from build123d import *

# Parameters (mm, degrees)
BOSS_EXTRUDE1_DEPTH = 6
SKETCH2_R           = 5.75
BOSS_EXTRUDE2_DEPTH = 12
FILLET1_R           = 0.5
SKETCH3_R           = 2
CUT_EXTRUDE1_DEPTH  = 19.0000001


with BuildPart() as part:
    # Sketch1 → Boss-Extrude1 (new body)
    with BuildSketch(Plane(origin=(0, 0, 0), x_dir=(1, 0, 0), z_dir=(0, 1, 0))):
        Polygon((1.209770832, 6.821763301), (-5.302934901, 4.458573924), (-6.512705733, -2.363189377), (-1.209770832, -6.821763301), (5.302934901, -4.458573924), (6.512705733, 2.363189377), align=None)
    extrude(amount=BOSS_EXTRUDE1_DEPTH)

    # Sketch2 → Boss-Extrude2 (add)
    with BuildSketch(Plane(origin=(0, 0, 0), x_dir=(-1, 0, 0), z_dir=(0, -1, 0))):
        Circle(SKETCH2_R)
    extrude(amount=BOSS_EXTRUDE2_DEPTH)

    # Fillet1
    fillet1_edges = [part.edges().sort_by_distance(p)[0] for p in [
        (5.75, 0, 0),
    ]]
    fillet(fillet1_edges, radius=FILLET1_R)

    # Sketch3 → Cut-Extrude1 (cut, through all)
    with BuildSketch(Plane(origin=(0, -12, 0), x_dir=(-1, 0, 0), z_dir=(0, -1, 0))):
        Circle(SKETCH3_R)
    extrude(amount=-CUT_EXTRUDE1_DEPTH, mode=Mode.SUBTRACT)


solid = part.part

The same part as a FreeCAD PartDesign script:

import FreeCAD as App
import Part
import Sketcher


def edges_at(feature, points):
    """Names of the edges that pass closest to the given points."""
    edges = feature.Shape.Edges
    near = lambda p: min(range(len(edges)), key=lambda i: edges[i].distToShape(Part.Vertex(*p))[0])
    return sorted({f"Edge{near(p) + 1}" for p in points})

doc = App.newDocument("Part")
body = doc.addObject("PartDesign::Body", "Body")

# Sketch on XZ plane
sketch1 = doc.addObject("Sketcher::SketchObject", "Sketch")
body.addObject(sketch1)
sketch1.AttachmentSupport = (doc.XZ_Plane, [""])
sketch1.MapMode = "FlatFace"
sketch1.addGeometry([
    Part.LineSegment(App.Vector(1, -7, 0), App.Vector(-5, -4, 0)),  # 0
    Part.LineSegment(App.Vector(-5, -4, 0), App.Vector(-7, 2, 0)),  # 1
    Part.LineSegment(App.Vector(-7, 2, 0), App.Vector(-1, 7, 0)),  # 2
    Part.LineSegment(App.Vector(-1, 7, 0), App.Vector(5, 4, 0)),  # 3
    Part.LineSegment(App.Vector(5, 4, 0), App.Vector(7, -2, 0)),  # 4
    Part.LineSegment(App.Vector(7, -2, 0), App.Vector(1, -7, 0)),  # 5
], False)
sketch1.addConstraint([
    Sketcher.Constraint("Coincident", 0, 2, 1, 1),
    Sketcher.Constraint("Coincident", 1, 2, 2, 1),
    Sketcher.Constraint("Coincident", 2, 2, 3, 1),
    Sketcher.Constraint("Coincident", 3, 2, 4, 1),
    Sketcher.Constraint("Coincident", 4, 2, 5, 1),
    Sketcher.Constraint("Coincident", 5, 2, 0, 1),
    Sketcher.Constraint("Symmetric", 0, 2, 3, 2, -1, 1),
    Sketcher.Constraint("Symmetric", 1, 2, 4, 2, -1, 1),
    Sketcher.Constraint("Symmetric", 2, 2, 5, 2, -1, 1),
    Sketcher.Constraint("Equal", 0, 1),
    Sketcher.Constraint("Equal", 1, 2),
    Sketcher.Constraint("DistanceY", -1, 1, 1, 2, 2.363189),
    Sketcher.Constraint("DistanceX", 2, 2, -1, 1, 1.209771),
    Sketcher.Constraint("DistanceX", 1, 2, 0, 2, 1.209771),
    Sketcher.Constraint("DistanceY", 3, 2, 2, 2, 2.363189),
])
pad1 = doc.addObject("PartDesign::Pad", "Pad")
body.addObject(pad1)
pad1.Profile = sketch1
pad1.Length = 6
pad1.Reversed = True

# Sketch on XZ plane
sketch2 = doc.addObject("Sketcher::SketchObject", "Sketch001")
body.addObject(sketch2)
sketch2.AttachmentSupport = (doc.XZ_Plane, [""])
sketch2.MapMode = "FlatFace"
sketch2.addGeometry(Part.Circle(App.Vector(0, 0, 0), App.Vector(0, 0, 1), 6), False)
sketch2.addConstraint([
    Sketcher.Constraint("Coincident", 0, 3, -1, 1),
    Sketcher.Constraint("Diameter", 0, 11.5),
])
pad2 = doc.addObject("PartDesign::Pad", "Pad001")
body.addObject(pad2)
pad2.Profile = sketch2
pad2.Length = 12
doc.recompute()

fillet = doc.addObject("PartDesign::Fillet", "Fillet")
body.addObject(fillet)
fillet.Base = (pad2, edges_at(pad2, [(5.75, 0, 0)]))
fillet.Radius = 0.5

# Sketch on XZ plane
sketch3 = doc.addObject("Sketcher::SketchObject", "Sketch002")
body.addObject(sketch3)
sketch3.AttachmentSupport = (doc.XZ_Plane, [""])
sketch3.MapMode = "FlatFace"
sketch3.AttachmentOffset = App.Placement(App.Vector(0, 0, 12), App.Rotation())
sketch3.addGeometry(Part.Circle(App.Vector(0, 0, 0), App.Vector(0, 0, 1), 2), False)
sketch3.addConstraint([
    Sketcher.Constraint("Coincident", 0, 3, -1, 1),
    Sketcher.Constraint("Diameter", 0, 4.0),
])
pocket1 = doc.addObject("PartDesign::Pocket", "Pocket")
body.addObject(pocket1)
pocket1.Profile = sketch3
pocket1.Type = "ThroughAll"

doc.recompute()
